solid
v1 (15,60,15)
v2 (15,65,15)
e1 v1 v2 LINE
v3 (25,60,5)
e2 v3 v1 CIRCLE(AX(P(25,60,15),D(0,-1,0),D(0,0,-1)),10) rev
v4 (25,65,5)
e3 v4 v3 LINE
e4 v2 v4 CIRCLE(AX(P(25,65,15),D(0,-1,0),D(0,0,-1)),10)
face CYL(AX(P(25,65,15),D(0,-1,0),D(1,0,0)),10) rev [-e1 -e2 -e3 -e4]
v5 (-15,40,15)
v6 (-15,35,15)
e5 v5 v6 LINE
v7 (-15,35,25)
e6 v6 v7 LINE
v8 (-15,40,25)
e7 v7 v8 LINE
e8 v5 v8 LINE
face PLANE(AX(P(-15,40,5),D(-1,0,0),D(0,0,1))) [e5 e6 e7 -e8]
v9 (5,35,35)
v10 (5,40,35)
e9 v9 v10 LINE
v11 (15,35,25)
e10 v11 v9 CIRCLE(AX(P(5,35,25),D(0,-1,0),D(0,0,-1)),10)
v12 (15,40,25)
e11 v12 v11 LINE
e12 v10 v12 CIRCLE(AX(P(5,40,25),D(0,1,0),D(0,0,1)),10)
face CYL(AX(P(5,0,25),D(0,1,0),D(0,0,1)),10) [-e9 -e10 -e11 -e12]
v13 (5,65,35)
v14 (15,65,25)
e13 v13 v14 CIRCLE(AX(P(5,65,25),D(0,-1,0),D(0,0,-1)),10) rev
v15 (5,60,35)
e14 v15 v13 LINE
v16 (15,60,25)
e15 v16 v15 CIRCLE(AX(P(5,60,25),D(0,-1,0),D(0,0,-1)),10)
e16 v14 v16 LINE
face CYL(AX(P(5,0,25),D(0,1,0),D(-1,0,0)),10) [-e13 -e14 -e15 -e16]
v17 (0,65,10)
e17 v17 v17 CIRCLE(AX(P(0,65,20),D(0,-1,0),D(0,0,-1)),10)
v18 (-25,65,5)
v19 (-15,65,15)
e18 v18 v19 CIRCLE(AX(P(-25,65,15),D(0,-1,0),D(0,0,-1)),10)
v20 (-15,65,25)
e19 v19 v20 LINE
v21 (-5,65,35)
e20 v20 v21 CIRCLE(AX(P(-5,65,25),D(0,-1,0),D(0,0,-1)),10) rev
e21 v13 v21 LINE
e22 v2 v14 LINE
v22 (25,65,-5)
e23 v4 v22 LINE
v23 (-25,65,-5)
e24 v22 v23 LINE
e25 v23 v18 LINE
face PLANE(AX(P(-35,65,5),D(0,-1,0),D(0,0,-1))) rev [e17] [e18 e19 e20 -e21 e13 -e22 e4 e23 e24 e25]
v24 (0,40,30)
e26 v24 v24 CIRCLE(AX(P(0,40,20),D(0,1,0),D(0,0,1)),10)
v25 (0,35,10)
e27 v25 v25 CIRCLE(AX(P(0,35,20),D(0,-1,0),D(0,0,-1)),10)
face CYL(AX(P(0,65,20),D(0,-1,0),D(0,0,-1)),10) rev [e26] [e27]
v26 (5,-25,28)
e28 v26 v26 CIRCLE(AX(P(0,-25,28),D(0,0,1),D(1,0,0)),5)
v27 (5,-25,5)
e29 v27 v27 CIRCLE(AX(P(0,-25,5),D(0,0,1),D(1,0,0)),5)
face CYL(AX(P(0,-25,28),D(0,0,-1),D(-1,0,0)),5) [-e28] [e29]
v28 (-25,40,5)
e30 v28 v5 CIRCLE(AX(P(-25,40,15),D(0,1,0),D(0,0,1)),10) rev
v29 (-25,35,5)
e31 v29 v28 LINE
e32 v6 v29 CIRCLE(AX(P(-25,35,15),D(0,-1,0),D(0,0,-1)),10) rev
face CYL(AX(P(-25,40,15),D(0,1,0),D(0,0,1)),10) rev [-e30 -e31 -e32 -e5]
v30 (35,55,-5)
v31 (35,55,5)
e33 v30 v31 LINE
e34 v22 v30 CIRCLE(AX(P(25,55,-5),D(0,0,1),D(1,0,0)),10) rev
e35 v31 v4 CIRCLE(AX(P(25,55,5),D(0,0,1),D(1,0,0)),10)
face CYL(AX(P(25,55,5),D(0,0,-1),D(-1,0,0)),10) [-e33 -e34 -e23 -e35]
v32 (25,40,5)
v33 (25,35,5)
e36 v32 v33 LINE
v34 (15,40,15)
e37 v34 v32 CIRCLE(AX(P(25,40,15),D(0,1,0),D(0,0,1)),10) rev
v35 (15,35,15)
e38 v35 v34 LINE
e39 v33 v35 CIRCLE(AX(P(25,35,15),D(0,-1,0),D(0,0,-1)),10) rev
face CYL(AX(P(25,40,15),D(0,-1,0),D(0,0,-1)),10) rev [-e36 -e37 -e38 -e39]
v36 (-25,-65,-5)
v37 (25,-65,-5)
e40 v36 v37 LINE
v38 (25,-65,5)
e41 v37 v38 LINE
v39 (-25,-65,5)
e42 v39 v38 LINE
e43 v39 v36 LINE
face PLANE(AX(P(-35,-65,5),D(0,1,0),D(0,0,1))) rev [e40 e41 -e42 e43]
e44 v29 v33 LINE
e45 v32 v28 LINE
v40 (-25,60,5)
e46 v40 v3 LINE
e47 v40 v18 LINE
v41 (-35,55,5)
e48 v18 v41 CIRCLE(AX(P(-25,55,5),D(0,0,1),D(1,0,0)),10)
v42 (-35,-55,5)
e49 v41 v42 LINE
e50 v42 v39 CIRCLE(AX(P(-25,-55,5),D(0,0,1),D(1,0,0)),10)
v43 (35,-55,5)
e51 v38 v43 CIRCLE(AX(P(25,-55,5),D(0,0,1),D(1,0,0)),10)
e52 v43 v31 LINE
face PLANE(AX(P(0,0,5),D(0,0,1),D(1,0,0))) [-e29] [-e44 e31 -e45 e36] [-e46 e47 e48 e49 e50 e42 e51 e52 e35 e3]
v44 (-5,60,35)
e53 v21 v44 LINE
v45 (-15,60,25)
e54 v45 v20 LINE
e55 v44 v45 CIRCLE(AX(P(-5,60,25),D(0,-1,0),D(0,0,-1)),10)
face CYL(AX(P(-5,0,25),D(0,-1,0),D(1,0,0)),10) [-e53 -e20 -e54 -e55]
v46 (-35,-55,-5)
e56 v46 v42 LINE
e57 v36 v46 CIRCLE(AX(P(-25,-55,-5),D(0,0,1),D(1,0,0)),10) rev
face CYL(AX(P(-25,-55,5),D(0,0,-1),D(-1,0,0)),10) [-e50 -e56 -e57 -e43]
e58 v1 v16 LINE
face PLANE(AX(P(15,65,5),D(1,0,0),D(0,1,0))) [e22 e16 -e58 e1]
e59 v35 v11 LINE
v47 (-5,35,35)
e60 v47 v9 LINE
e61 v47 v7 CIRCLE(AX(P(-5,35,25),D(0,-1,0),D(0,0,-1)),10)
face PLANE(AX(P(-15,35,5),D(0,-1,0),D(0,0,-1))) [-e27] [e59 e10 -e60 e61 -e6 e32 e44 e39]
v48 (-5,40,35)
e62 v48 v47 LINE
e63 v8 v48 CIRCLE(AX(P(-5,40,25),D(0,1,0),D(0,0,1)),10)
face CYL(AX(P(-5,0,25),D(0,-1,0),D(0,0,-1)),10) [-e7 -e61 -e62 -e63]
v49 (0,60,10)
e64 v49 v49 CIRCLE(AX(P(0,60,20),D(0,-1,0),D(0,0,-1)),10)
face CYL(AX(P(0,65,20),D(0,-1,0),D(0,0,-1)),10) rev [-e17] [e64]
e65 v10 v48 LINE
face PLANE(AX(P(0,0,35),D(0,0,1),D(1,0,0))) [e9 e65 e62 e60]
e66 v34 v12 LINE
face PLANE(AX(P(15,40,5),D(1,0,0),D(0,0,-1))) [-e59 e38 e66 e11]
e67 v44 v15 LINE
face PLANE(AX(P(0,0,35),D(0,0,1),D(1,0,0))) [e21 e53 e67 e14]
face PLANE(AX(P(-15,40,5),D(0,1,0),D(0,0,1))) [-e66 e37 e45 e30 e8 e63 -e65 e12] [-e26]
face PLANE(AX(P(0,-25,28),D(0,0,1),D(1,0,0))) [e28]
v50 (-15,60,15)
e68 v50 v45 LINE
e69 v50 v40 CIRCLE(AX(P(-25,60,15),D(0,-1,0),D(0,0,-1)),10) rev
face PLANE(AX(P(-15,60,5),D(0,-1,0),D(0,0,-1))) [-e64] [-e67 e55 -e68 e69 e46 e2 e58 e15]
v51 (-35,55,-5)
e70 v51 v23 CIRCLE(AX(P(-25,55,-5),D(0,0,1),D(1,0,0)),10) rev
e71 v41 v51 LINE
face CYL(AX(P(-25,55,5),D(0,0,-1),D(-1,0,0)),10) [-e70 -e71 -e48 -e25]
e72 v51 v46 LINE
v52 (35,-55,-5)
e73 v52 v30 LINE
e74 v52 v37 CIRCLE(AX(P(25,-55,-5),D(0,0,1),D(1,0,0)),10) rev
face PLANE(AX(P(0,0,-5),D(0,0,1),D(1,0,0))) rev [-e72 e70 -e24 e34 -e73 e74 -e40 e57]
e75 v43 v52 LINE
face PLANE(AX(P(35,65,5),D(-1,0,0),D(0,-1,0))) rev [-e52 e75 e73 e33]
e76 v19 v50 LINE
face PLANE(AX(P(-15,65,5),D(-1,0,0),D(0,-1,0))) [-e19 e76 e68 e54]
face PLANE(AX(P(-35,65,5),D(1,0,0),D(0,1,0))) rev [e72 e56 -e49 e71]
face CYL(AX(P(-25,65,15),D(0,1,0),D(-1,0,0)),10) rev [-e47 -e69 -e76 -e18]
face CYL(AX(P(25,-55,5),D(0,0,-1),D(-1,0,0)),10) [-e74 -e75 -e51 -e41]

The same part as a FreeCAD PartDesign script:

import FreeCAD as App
import Part
import Sketcher

V = App.Vector


def edges_at(feature, points):
    """Names of the edges that pass closest to the given points."""
    edges = feature.Shape.Edges
    near = lambda p: min(range(len(edges)), key=lambda i: edges[i].distToShape(Part.Vertex(*p))[0])
    return sorted({f"Edge{near(p) + 1}" for p in points})

doc = App.newDocument("Part")
body = doc.addObject("PartDesign::Body", "Body")

sketch1 = body.newObject("Sketcher::SketchObject", "Sketch")
sketch1.AttachmentSupport = (doc.getObject("XY_Plane"), [""])
sketch1.MapMode = "FlatFace"
sketch1.addGeometry([
    Part.LineSegment(V(-35, 65, 0), V(-35, -65, 0)),
    Part.LineSegment(V(-35, -65, 0), V(35, -65, 0)),
    Part.LineSegment(V(35, -65, 0), V(35, 65, 0)),
    Part.LineSegment(V(35, 65, 0), V(-35, 65, 0)),
], False)
sketch1.addConstraint([
    Sketcher.Constraint("Coincident", 0, 2, 1, 1),
    Sketcher.Constraint("Coincident", 1, 2, 2, 1),
    Sketcher.Constraint("Coincident", 2, 2, 3, 1),
    Sketcher.Constraint("Coincident", 3, 2, 0, 1),
    Sketcher.Constraint("Vertical", 0),
    Sketcher.Constraint("Horizontal", 1),
    Sketcher.Constraint("Vertical", 2),
    Sketcher.Constraint("Horizontal", 3),
    Sketcher.Constraint("Symmetric", 0, 2, 2, 2, -1, 1),
    Sketcher.Constraint("DistanceX", 1, 1, 1, 2, 70.0),
    Sketcher.Constraint("DistanceY", 0, 2, 0, 1, 130.0),
])
pad1 = body.newObject("PartDesign::Pad", "Pad")
pad1.Profile = sketch1
pad1.Length = 10
pad1.Midplane = True
doc.recompute()

fillet = body.newObject("PartDesign::Fillet", "Fillet")
fillet.Base = (pad1, edges_at(pad1, [
    (35, -65, 0),
    (-35, -65, 0),
    (-35, 65, 0),
    (35, 65, 0),
]))
fillet.Radius = 10

sketch2 = body.newObject("Sketcher::SketchObject", "Sketch001")
sketch2.AttachmentSupport = (doc.getObject("XY_Plane"), [""])
sketch2.MapMode = "FlatFace"
sketch2.AttachmentOffset = App.Placement(V(0, 0, 5), App.Rotation())
sketch2.addGeometry(Part.Circle(V(0, -25, 0), V(0, 0, 1), 5), False)
sketch2.addConstraint([
    Sketcher.Constraint("PointOnObject", 0, 3, -2),
    Sketcher.Constraint("Diameter", 0, 10.0),
    Sketcher.Constraint("DistanceY", 0, 3, -1, 1, 25.0),
])
pad2 = body.newObject("PartDesign::Pad", "Pad001")
pad2.Profile = sketch2
pad2.Length = 23

sketch3 = body.newObject("Sketcher::SketchObject", "Sketch002")
sketch3.AttachmentSupport = (doc.getObject("XY_Plane"), [""])
sketch3.MapMode = "FlatFace"
sketch3.AttachmentOffset = App.Placement(V(0, 0, 35), App.Rotation())
sketch3.addGeometry([
    Part.LineSegment(V(-15, 65, 0), V(-15, 60, 0)),
    Part.LineSegment(V(-15, 60, 0), V(15, 60, 0)),
    Part.LineSegment(V(15, 60, 0), V(15, 65, 0)),
    Part.LineSegment(V(15, 65, 0), V(-15, 65, 0)),
    Part.LineSegment(V(-15, 40, 0), V(-15, 35, 0)),
    Part.LineSegment(V(-15, 35, 0), V(15, 35, 0)),
    Part.LineSegment(V(15, 35, 0), V(15, 40, 0)),
    Part.LineSegment(V(15, 40, 0), V(-15, 40, 0)),
], False)
sketch3.addConstraint([
    Sketcher.Constraint("Coincident", 0, 2, 1, 1),
    Sketcher.Constraint("Coincident", 1, 2, 2, 1),
    Sketcher.Constraint("Coincident", 2, 2, 3, 1),
    Sketcher.Constraint("Coincident", 3, 2, 0, 1),
    Sketcher.Constraint("Coincident", 4, 2, 5, 1),
    Sketcher.Constraint("Coincident", 5, 2, 6, 1),
    Sketcher.Constraint("Coincident", 6, 2, 7, 1),
    Sketcher.Constraint("Coincident", 7, 2, 4, 1),
    Sketcher.Constraint("Vertical", 0),
    Sketcher.Constraint("Horizontal", 1),
    Sketcher.Constraint("Vertical", 2),
    Sketcher.Constraint("Horizontal", 3),
    Sketcher.Constraint("Vertical", 4),
    Sketcher.Constraint("Horizontal", 5),
    Sketcher.Constraint("Vertical", 6),
    Sketcher.Constraint("Horizontal", 7),
    Sketcher.Constraint("Vertical", 3, 2, 4, 2),
    Sketcher.Constraint("Vertical", 2, 2, 5, 2),
    Sketcher.Constraint("Equal", 2, 4),
    Sketcher.Constraint("DistanceX", 1, 1, 1, 2, 30.0),
    Sketcher.Constraint("DistanceY", 0, 2, 0, 1, 5.0),
    Sketcher.Constraint("DistanceX", 0, 2, -1, 1, 15.0),
    Sketcher.Constraint("DistanceY", -1, 1, 0, 2, 60.0),
    Sketcher.Constraint("DistanceY", -1, 1, 4, 2, 35.0),
])
pad3 = body.newObject("PartDesign::Pad", "Pad002")
pad3.Profile = sketch3
pad3.Length = 30
pad3.Reversed = True

sketch4 = body.newObject("Sketcher::SketchObject", "Sketch003")
sketch4.AttachmentSupport = (doc.getObject("XZ_Plane"), [""])
sketch4.MapMode = "FlatFace"
sketch4.AttachmentOffset = App.Placement(V(0, 0, -35), App.Rotation())
sketch4.addGeometry(Part.Circle(V(0, 20, 0), V(0, 0, 1), 10), False)
sketch4.addConstraint([
    Sketcher.Constraint("PointOnObject", 0, 3, -2),
    Sketcher.Constraint("Diameter", 0, 20.0),
    Sketcher.Constraint("DistanceY", -1, 1, 0, 3, 20.0),
])
pocket1 = body.newObject("PartDesign::Pocket", "Pocket")
pocket1.Profile = sketch4
pocket1.Type = "ThroughAll"
doc.recompute()

fillet2 = body.newObject("PartDesign::Fillet", "Fillet001")
fillet2.Base = (pocket1, edges_at(pocket1, [
    (-15, 62.5, 5),
    (-15, 62.5, 35),
    (15, 62.5, 5),
    (15, 62.5, 35),
]))
fillet2.Radius = 10
doc.recompute()

fillet3 = body.newObject("PartDesign::Fillet", "Fillet002")
fillet3.Base = (fillet2, edges_at(fillet2, [
    (-15, 37.5, 5),
    (15, 37.5, 5),
    (-15, 37.5, 35),
    (15, 37.5, 35),
]))
fillet3.Radius = 10

doc.recompute()
